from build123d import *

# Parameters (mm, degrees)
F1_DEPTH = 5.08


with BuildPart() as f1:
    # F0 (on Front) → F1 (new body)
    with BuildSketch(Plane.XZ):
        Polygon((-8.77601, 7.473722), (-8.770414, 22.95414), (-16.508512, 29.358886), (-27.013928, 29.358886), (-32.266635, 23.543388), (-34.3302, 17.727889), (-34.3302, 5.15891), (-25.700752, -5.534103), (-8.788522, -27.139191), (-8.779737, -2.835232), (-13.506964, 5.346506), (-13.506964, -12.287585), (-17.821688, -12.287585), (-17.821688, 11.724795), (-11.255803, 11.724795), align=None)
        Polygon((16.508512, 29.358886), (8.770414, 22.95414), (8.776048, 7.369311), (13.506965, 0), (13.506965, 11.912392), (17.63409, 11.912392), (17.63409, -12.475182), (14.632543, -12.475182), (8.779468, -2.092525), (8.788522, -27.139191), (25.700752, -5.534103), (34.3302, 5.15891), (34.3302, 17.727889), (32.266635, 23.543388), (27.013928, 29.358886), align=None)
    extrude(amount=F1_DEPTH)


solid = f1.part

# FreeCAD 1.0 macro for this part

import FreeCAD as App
import Part
import Sketcher
Q = App.Units.Quantity


def add_polygon(sketch, points):
    """Adds a closed chain of lines whose ends are joined by coincident constraints."""
    first, n = sketch.GeometryCount, len(points)
    for a, b in zip(points, points[1:] + points[:1]):
        sketch.addGeometry(Part.LineSegment(App.Vector(*a, 0), App.Vector(*b, 0)), False)
    for i in range(n):
        sketch.addConstraint(Sketcher.Constraint("Coincident", first + i, 2, first + (i + 1) % n, 1))

doc = App.newDocument("Part")
params = doc.addObject("Spreadsheet::Sheet", "Params")
for row, (alias, value) in enumerate([
    ("pad1_length", "0.2 in"),
], start=1):
    params.set(f"A{row}", alias)
    params.set(f"B{row}", "=" + value)
    params.setAlias(f"B{row}", alias)

body = doc.addObject("PartDesign::Body", "Body")
body.AllowCompound = True

# Sketch on XZ plane
sketch1 = body.newObject("Sketcher::SketchObject", "Sketch")
sketch1.AttachmentSupport = (doc.getObject("XZ_Plane"), [""])
sketch1.MapMode = "FlatFace"
add_polygon(sketch1, [(-8.8, 7.5), (-8.8, 23), (-16.5, 29.4), (-27, 29.4), (-32.3, 23.5), (-34.3, 17.7), (-34.3, 5.2), (-25.7, -5.5), (-8.8, -27.1), (-8.8, -2.8), (-13.5, 5.3), (-13.5, -12.3), (-17.8, -12.3), (-17.8, 11.7), (-11.3, 11.7)])  # lines 0-14
add_polygon(sketch1, [(16.5, 29.4), (8.8, 23), (8.8, 7.4), (13.5, 0), (13.5, 11.9), (17.6, 11.9), (17.6, -12.5), (14.6, -12.5), (8.8, -2.1), (8.8, -27.1), (25.7, -5.5), (34.3, 5.2), (34.3, 17.7), (32.3, 23.5), (27, 29.4)])  # lines 15-29
sketch1.addConstraint([
    Sketcher.Constraint("Horizontal", 2),
    Sketcher.Constraint("Vertical", 5),
    Sketcher.Constraint("Vertical", 10),
    Sketcher.Constraint("Horizontal", 11),
    Sketcher.Constraint("Vertical", 12),
    Sketcher.Constraint("Horizontal", 13),
    Sketcher.Constraint("Vertical", 18),
    Sketcher.Constraint("Horizontal", 19),
    Sketcher.Constraint("Vertical", 20),
    Sketcher.Constraint("Horizontal", 21),
    Sketcher.Constraint("Vertical", 26),
    Sketcher.Constraint("Horizontal", 29),
    Sketcher.Constraint("Symmetric", 0, 2, 15, 2, -2),
    Sketcher.Constraint("Symmetric", 7, 2, 23, 2, -2),
    Sketcher.Constraint("Symmetric", 6, 2, 24, 2, -2),
    Sketcher.Constraint("Symmetric", 5, 2, 25, 2, -2),
    Sketcher.Constraint("Symmetric", 3, 2, 27, 2, -2),
    Sketcher.Constraint("Symmetric", 2, 2, 28, 2, -2),
    Sketcher.Constraint("PointOnObject", 17, 2, -1),
    Sketcher.Constraint("Parallel", 0, 8),
    Sketcher.Constraint("Parallel", 16, 23),
    Sketcher.Constraint("Horizontal", 4, 2, 26, 2),
    Sketcher.Constraint("Equal", 2, 29),
    Sketcher.Constraint("DistanceX", 2, 2, 6, 2, Q("0.0516998 in")),
    Sketcher.Constraint("DistanceY", 12, 2, 0, 2, Q("0.4421002 in")),
    Sketcher.Constraint("DistanceX", 12, 2, 1, 2, Q("0.0516998 in")),
    Sketcher.Constraint("DistanceY", 5, 2, 5, 1, Q("12.568979 mm")),
    Sketcher.Constraint("DistanceY", 10, 2, 10, 1, Q("17.634091 mm")),
    Sketcher.Constraint("DistanceY", 12, 1, 12, 2, Q("24.01238 mm")),
    Sketcher.Constraint("DistanceX", 4, 2, -1, 1, Q("34.3302 mm")),
    Sketcher.Constraint("DistanceY", 4, 2, 3, 2, Q("5.815499 mm")),
    Sketcher.Constraint("DistanceY", 7, 2, 5, 2, Q("32.298101 mm")),
    Sketcher.Constraint("DistanceX", 8, 2, 17, 2, Q("22.286702 mm")),
    Sketcher.Constraint("DistanceX", 14, 2, 19, 2, Q("26.4101 mm")),
    Sketcher.Constraint("Distance", 0, Q("15.480419 mm")),
    Sketcher.Constraint("Distance", 6, Q("13.740739 mm")),
    Sketcher.Constraint("Distance", 8, Q("24.303961 mm")),
    Sketcher.Constraint("Distance", 16, Q("15.58483 mm")),
    Sketcher.Constraint("Distance", 22, Q("11.918811 mm")),
    Sketcher.Constraint("DistanceX", 2, 2, 2, 1, Q("10.505416 mm")),
    Sketcher.Constraint("DistanceX", 11, 2, 11, 1, Q("4.314724 mm")),
    Sketcher.Constraint("DistanceX", 13, 1, 13, 2, Q("6.565885 mm")),
    Sketcher.Constraint("DistanceX", 19, 1, 19, 2, Q("4.127125 mm")),
    Sketcher.Constraint("DistanceX", 21, 2, 21, 1, Q("3.001547 mm")),
    Sketcher.Constraint("DistanceY", 18, 1, 18, 2, Q("11.912392 mm")),
    Sketcher.Constraint("DistanceY", 20, 2, 20, 1, Q("24.387574 mm")),
    Sketcher.Constraint("DistanceY", -1, 1, 0, 2, Q("22.95414 mm")),
    Sketcher.Constraint("DistanceX", 1, 2, -1, 1, Q("16.508512 mm")),
    Sketcher.Constraint("DistanceY", -1, 1, 3, 2, Q("23.543388 mm")),
    Sketcher.Constraint("DistanceX", 14, 2, -1, 1, Q("8.77601 mm")),
    Sketcher.Constraint("DistanceX", 3, 2, 0, 2, Q("23.496221 mm")),
    Sketcher.Constraint("DistanceY", 6, 2, 2, 2, Q("34.892989 mm")),
    Sketcher.Constraint("DistanceX", 6, 2, 7, 2, Q("16.91223 mm")),
    Sketcher.Constraint("DistanceX", 13, 2, 16, 2, Q("20.031851 mm")),
])
pad1 = body.newObject("PartDesign::Pad", "Pad")
pad1.Profile = sketch1
pad1.setExpression("Length", "Params.pad1_length")

doc.recompute()
